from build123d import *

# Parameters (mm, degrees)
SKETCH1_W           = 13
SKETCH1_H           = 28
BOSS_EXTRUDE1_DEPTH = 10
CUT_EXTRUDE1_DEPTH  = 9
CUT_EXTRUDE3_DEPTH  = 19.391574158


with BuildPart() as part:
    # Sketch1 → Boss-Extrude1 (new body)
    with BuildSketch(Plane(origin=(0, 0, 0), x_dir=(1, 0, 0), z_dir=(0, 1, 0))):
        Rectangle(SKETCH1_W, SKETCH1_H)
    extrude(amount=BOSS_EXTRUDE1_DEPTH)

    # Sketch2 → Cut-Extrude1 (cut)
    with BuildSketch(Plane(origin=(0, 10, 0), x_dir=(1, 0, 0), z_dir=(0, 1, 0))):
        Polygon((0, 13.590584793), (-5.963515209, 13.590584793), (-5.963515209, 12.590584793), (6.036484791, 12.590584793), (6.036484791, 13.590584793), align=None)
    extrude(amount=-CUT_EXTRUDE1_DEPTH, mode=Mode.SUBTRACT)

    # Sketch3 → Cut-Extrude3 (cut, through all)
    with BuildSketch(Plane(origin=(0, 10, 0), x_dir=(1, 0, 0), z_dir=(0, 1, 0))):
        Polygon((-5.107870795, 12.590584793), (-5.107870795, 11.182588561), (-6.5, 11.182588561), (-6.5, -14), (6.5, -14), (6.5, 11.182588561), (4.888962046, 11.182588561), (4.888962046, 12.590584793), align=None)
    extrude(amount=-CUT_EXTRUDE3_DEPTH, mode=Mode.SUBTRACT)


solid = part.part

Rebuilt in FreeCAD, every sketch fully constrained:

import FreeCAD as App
import Part
import Sketcher

V = App.Vector

doc = App.newDocument("Part")
body = doc.addObject("PartDesign::Body", "Body")

# Sketch on XZ plane
sketch1 = body.newObject("Sketcher::SketchObject", "Sketch")
sketch1.AttachmentSupport = (doc.getObject("XZ_Plane"), [""])
sketch1.MapMode = "FlatFace"
sketch1.addGeometry([
    Part.LineSegment(V(-6, -14, 0), V(-6, 14, 0)),
    Part.LineSegment(V(-6, 14, 0), V(6, 14, 0)),
    Part.LineSegment(V(6, 14, 0), V(6, -14, 0)),
    Part.LineSegment(V(6, -14, 0), V(-6, -14, 0)),
], False)
sketch1.addConstraint([
    Sketcher.Constraint("Coincident", 0, 2, 1, 1),
    Sketcher.Constraint("Coincident", 1, 2, 2, 1),
    Sketcher.Constraint("Coincident", 2, 2, 3, 1),
    Sketcher.Constraint("Coincident", 3, 2, 0, 1),
    Sketcher.Constraint("Vertical", 0),
    Sketcher.Constraint("Horizontal", 1),
    Sketcher.Constraint("Vertical", 2),
    Sketcher.Constraint("Horizontal", 3),
    Sketcher.Constraint("Symmetric", 0, 2, 2, 2, -1, 1),
    Sketcher.Constraint("DistanceX", 1, 1, 1, 2, 13.0),
    Sketcher.Constraint("DistanceY", 0, 1, 0, 2, 28.0),
])
pad1 = body.newObject("PartDesign::Pad", "Pad")
pad1.Profile = sketch1
pad1.Length = 10
pad1.Reversed = True

# Sketch on XZ plane
sketch2 = body.newObject("Sketcher::SketchObject", "Sketch001")
sketch2.AttachmentSupport = (doc.getObject("XZ_Plane"), [""])
sketch2.MapMode = "FlatFace"
sketch2.AttachmentOffset = App.Placement(V(0, 0, -10), App.Rotation())
sketch2.addGeometry([
    Part.LineSegment(V(-6, -13.6, 0), V(-6, -12.6, 0)),
    Part.LineSegment(V(-6, -12.6, 0), V(6, -12.6, 0)),
    Part.LineSegment(V(6, -12.6, 0), V(6, -13.6, 0)),
    Part.LineSegment(V(6, -13.6, 0), V(-6, -13.6, 0)),
], False)
sketch2.addConstraint([
    Sketcher.Constraint("Coincident", 0, 2, 1, 1),
    Sketcher.Constraint("Coincident", 1, 2, 2, 1),
    Sketcher.Constraint("Coincident", 2, 2, 3, 1),
    Sketcher.Constraint("Coincident", 3, 2, 0, 1),
    Sketcher.Constraint("Vertical", 0),
    Sketcher.Constraint("Horizontal", 1),
    Sketcher.Constraint("Vertical", 2),
    Sketcher.Constraint("Horizontal", 3),
    Sketcher.Constraint("DistanceX", 1, 1, 1, 2, 12.0),
    Sketcher.Constraint("DistanceY", 0, 1, 0, 2, 1.0),
    Sketcher.Constraint("DistanceX", 0, 2, -1, 1, 5.963515),
    Sketcher.Constraint("DistanceY", 0, 2, -1, 1, 12.590585),
])
pocket1 = body.newObject("PartDesign::Pocket", "Pocket")
pocket1.Profile = sketch2
pocket1.Length = 9
pocket1.Reversed = True

# Sketch on XZ plane
sketch3 = body.newObject("Sketcher::SketchObject", "Sketch002")
sketch3.AttachmentSupport = (doc.getObject("XZ_Plane"), [""])
sketch3.MapMode = "FlatFace"
sketch3.AttachmentOffset = App.Placement(V(0, 0, -10), App.Rotation())
sketch3.addGeometry([
    Part.LineSegment(V(-5.1, -12.6, 0), V(-5.1, -11.2, 0)),  # 0
    Part.LineSegment(V(-5.1, -11.2, 0), V(-6.5, -11.2, 0)),  # 1
    Part.LineSegment(V(-6.5, -11.2, 0), V(-6.5, 14, 0)),  # 2
    Part.LineSegment(V(-6.5, 14, 0), V(6.5, 14, 0)),  # 3
    Part.LineSegment(V(6.5, 14, 0), V(6.5, -11.2, 0)),  # 4
    Part.LineSegment(V(6.5, -11.2, 0), V(4.9, -11.2, 0)),  # 5
    Part.LineSegment(V(4.9, -11.2, 0), V(4.9, -12.6, 0)),  # 6
    Part.LineSegment(V(4.9, -12.6, 0), V(-5.1, -12.6, 0)),  # 7
], False)
sketch3.addConstraint([
    Sketcher.Constraint("Coincident", 0, 2, 1, 1),
    Sketcher.Constraint("Coincident", 1, 2, 2, 1),
    Sketcher.Constraint("Coincident", 2, 2, 3, 1),
    Sketcher.Constraint("Coincident", 3, 2, 4, 1),
    Sketcher.Constraint("Coincident", 4, 2, 5, 1),
    Sketcher.Constraint("Coincident", 5, 2, 6, 1),
    Sketcher.Constraint("Coincident", 6, 2, 7, 1),
    Sketcher.Constraint("Coincident", 7, 2, 0, 1),
    Sketcher.Constraint("Vertical", 0),
    Sketcher.Constraint("Horizontal", 1),
    Sketcher.Constraint("Vertical", 2),
    Sketcher.Constraint("Horizontal", 3),
    Sketcher.Constraint("Vertical", 4),
    Sketcher.Constraint("Horizontal", 5),
    Sketcher.Constraint("Vertical", 6),
    Sketcher.Constraint("Horizontal", 7),
    Sketcher.Constraint("Symmetric", 1, 2, 4, 2, -2),
    Sketcher.Constraint("DistanceX", 3, 1, 3, 2, 13.0),
    Sketcher.Constraint("DistanceY", -1, 1, 2, 2, 14.0),
    Sketcher.Constraint("DistanceX", 1, 2, 1, 1, 1.392129),
    Sketcher.Constraint("DistanceY", 2, 1, 2, 2, 25.182589),
    Sketcher.Constraint("DistanceX", 5, 2, 5, 1, 1.611038),
    Sketcher.Constraint("DistanceY", 0, 1, 0, 2, 1.407996),
])
pocket2 = body.newObject("PartDesign::Pocket", "Pocket001")
pocket2.Profile = sketch3
pocket2.Type = "ThroughAll"
pocket2.Reversed = True

doc.recompute()
